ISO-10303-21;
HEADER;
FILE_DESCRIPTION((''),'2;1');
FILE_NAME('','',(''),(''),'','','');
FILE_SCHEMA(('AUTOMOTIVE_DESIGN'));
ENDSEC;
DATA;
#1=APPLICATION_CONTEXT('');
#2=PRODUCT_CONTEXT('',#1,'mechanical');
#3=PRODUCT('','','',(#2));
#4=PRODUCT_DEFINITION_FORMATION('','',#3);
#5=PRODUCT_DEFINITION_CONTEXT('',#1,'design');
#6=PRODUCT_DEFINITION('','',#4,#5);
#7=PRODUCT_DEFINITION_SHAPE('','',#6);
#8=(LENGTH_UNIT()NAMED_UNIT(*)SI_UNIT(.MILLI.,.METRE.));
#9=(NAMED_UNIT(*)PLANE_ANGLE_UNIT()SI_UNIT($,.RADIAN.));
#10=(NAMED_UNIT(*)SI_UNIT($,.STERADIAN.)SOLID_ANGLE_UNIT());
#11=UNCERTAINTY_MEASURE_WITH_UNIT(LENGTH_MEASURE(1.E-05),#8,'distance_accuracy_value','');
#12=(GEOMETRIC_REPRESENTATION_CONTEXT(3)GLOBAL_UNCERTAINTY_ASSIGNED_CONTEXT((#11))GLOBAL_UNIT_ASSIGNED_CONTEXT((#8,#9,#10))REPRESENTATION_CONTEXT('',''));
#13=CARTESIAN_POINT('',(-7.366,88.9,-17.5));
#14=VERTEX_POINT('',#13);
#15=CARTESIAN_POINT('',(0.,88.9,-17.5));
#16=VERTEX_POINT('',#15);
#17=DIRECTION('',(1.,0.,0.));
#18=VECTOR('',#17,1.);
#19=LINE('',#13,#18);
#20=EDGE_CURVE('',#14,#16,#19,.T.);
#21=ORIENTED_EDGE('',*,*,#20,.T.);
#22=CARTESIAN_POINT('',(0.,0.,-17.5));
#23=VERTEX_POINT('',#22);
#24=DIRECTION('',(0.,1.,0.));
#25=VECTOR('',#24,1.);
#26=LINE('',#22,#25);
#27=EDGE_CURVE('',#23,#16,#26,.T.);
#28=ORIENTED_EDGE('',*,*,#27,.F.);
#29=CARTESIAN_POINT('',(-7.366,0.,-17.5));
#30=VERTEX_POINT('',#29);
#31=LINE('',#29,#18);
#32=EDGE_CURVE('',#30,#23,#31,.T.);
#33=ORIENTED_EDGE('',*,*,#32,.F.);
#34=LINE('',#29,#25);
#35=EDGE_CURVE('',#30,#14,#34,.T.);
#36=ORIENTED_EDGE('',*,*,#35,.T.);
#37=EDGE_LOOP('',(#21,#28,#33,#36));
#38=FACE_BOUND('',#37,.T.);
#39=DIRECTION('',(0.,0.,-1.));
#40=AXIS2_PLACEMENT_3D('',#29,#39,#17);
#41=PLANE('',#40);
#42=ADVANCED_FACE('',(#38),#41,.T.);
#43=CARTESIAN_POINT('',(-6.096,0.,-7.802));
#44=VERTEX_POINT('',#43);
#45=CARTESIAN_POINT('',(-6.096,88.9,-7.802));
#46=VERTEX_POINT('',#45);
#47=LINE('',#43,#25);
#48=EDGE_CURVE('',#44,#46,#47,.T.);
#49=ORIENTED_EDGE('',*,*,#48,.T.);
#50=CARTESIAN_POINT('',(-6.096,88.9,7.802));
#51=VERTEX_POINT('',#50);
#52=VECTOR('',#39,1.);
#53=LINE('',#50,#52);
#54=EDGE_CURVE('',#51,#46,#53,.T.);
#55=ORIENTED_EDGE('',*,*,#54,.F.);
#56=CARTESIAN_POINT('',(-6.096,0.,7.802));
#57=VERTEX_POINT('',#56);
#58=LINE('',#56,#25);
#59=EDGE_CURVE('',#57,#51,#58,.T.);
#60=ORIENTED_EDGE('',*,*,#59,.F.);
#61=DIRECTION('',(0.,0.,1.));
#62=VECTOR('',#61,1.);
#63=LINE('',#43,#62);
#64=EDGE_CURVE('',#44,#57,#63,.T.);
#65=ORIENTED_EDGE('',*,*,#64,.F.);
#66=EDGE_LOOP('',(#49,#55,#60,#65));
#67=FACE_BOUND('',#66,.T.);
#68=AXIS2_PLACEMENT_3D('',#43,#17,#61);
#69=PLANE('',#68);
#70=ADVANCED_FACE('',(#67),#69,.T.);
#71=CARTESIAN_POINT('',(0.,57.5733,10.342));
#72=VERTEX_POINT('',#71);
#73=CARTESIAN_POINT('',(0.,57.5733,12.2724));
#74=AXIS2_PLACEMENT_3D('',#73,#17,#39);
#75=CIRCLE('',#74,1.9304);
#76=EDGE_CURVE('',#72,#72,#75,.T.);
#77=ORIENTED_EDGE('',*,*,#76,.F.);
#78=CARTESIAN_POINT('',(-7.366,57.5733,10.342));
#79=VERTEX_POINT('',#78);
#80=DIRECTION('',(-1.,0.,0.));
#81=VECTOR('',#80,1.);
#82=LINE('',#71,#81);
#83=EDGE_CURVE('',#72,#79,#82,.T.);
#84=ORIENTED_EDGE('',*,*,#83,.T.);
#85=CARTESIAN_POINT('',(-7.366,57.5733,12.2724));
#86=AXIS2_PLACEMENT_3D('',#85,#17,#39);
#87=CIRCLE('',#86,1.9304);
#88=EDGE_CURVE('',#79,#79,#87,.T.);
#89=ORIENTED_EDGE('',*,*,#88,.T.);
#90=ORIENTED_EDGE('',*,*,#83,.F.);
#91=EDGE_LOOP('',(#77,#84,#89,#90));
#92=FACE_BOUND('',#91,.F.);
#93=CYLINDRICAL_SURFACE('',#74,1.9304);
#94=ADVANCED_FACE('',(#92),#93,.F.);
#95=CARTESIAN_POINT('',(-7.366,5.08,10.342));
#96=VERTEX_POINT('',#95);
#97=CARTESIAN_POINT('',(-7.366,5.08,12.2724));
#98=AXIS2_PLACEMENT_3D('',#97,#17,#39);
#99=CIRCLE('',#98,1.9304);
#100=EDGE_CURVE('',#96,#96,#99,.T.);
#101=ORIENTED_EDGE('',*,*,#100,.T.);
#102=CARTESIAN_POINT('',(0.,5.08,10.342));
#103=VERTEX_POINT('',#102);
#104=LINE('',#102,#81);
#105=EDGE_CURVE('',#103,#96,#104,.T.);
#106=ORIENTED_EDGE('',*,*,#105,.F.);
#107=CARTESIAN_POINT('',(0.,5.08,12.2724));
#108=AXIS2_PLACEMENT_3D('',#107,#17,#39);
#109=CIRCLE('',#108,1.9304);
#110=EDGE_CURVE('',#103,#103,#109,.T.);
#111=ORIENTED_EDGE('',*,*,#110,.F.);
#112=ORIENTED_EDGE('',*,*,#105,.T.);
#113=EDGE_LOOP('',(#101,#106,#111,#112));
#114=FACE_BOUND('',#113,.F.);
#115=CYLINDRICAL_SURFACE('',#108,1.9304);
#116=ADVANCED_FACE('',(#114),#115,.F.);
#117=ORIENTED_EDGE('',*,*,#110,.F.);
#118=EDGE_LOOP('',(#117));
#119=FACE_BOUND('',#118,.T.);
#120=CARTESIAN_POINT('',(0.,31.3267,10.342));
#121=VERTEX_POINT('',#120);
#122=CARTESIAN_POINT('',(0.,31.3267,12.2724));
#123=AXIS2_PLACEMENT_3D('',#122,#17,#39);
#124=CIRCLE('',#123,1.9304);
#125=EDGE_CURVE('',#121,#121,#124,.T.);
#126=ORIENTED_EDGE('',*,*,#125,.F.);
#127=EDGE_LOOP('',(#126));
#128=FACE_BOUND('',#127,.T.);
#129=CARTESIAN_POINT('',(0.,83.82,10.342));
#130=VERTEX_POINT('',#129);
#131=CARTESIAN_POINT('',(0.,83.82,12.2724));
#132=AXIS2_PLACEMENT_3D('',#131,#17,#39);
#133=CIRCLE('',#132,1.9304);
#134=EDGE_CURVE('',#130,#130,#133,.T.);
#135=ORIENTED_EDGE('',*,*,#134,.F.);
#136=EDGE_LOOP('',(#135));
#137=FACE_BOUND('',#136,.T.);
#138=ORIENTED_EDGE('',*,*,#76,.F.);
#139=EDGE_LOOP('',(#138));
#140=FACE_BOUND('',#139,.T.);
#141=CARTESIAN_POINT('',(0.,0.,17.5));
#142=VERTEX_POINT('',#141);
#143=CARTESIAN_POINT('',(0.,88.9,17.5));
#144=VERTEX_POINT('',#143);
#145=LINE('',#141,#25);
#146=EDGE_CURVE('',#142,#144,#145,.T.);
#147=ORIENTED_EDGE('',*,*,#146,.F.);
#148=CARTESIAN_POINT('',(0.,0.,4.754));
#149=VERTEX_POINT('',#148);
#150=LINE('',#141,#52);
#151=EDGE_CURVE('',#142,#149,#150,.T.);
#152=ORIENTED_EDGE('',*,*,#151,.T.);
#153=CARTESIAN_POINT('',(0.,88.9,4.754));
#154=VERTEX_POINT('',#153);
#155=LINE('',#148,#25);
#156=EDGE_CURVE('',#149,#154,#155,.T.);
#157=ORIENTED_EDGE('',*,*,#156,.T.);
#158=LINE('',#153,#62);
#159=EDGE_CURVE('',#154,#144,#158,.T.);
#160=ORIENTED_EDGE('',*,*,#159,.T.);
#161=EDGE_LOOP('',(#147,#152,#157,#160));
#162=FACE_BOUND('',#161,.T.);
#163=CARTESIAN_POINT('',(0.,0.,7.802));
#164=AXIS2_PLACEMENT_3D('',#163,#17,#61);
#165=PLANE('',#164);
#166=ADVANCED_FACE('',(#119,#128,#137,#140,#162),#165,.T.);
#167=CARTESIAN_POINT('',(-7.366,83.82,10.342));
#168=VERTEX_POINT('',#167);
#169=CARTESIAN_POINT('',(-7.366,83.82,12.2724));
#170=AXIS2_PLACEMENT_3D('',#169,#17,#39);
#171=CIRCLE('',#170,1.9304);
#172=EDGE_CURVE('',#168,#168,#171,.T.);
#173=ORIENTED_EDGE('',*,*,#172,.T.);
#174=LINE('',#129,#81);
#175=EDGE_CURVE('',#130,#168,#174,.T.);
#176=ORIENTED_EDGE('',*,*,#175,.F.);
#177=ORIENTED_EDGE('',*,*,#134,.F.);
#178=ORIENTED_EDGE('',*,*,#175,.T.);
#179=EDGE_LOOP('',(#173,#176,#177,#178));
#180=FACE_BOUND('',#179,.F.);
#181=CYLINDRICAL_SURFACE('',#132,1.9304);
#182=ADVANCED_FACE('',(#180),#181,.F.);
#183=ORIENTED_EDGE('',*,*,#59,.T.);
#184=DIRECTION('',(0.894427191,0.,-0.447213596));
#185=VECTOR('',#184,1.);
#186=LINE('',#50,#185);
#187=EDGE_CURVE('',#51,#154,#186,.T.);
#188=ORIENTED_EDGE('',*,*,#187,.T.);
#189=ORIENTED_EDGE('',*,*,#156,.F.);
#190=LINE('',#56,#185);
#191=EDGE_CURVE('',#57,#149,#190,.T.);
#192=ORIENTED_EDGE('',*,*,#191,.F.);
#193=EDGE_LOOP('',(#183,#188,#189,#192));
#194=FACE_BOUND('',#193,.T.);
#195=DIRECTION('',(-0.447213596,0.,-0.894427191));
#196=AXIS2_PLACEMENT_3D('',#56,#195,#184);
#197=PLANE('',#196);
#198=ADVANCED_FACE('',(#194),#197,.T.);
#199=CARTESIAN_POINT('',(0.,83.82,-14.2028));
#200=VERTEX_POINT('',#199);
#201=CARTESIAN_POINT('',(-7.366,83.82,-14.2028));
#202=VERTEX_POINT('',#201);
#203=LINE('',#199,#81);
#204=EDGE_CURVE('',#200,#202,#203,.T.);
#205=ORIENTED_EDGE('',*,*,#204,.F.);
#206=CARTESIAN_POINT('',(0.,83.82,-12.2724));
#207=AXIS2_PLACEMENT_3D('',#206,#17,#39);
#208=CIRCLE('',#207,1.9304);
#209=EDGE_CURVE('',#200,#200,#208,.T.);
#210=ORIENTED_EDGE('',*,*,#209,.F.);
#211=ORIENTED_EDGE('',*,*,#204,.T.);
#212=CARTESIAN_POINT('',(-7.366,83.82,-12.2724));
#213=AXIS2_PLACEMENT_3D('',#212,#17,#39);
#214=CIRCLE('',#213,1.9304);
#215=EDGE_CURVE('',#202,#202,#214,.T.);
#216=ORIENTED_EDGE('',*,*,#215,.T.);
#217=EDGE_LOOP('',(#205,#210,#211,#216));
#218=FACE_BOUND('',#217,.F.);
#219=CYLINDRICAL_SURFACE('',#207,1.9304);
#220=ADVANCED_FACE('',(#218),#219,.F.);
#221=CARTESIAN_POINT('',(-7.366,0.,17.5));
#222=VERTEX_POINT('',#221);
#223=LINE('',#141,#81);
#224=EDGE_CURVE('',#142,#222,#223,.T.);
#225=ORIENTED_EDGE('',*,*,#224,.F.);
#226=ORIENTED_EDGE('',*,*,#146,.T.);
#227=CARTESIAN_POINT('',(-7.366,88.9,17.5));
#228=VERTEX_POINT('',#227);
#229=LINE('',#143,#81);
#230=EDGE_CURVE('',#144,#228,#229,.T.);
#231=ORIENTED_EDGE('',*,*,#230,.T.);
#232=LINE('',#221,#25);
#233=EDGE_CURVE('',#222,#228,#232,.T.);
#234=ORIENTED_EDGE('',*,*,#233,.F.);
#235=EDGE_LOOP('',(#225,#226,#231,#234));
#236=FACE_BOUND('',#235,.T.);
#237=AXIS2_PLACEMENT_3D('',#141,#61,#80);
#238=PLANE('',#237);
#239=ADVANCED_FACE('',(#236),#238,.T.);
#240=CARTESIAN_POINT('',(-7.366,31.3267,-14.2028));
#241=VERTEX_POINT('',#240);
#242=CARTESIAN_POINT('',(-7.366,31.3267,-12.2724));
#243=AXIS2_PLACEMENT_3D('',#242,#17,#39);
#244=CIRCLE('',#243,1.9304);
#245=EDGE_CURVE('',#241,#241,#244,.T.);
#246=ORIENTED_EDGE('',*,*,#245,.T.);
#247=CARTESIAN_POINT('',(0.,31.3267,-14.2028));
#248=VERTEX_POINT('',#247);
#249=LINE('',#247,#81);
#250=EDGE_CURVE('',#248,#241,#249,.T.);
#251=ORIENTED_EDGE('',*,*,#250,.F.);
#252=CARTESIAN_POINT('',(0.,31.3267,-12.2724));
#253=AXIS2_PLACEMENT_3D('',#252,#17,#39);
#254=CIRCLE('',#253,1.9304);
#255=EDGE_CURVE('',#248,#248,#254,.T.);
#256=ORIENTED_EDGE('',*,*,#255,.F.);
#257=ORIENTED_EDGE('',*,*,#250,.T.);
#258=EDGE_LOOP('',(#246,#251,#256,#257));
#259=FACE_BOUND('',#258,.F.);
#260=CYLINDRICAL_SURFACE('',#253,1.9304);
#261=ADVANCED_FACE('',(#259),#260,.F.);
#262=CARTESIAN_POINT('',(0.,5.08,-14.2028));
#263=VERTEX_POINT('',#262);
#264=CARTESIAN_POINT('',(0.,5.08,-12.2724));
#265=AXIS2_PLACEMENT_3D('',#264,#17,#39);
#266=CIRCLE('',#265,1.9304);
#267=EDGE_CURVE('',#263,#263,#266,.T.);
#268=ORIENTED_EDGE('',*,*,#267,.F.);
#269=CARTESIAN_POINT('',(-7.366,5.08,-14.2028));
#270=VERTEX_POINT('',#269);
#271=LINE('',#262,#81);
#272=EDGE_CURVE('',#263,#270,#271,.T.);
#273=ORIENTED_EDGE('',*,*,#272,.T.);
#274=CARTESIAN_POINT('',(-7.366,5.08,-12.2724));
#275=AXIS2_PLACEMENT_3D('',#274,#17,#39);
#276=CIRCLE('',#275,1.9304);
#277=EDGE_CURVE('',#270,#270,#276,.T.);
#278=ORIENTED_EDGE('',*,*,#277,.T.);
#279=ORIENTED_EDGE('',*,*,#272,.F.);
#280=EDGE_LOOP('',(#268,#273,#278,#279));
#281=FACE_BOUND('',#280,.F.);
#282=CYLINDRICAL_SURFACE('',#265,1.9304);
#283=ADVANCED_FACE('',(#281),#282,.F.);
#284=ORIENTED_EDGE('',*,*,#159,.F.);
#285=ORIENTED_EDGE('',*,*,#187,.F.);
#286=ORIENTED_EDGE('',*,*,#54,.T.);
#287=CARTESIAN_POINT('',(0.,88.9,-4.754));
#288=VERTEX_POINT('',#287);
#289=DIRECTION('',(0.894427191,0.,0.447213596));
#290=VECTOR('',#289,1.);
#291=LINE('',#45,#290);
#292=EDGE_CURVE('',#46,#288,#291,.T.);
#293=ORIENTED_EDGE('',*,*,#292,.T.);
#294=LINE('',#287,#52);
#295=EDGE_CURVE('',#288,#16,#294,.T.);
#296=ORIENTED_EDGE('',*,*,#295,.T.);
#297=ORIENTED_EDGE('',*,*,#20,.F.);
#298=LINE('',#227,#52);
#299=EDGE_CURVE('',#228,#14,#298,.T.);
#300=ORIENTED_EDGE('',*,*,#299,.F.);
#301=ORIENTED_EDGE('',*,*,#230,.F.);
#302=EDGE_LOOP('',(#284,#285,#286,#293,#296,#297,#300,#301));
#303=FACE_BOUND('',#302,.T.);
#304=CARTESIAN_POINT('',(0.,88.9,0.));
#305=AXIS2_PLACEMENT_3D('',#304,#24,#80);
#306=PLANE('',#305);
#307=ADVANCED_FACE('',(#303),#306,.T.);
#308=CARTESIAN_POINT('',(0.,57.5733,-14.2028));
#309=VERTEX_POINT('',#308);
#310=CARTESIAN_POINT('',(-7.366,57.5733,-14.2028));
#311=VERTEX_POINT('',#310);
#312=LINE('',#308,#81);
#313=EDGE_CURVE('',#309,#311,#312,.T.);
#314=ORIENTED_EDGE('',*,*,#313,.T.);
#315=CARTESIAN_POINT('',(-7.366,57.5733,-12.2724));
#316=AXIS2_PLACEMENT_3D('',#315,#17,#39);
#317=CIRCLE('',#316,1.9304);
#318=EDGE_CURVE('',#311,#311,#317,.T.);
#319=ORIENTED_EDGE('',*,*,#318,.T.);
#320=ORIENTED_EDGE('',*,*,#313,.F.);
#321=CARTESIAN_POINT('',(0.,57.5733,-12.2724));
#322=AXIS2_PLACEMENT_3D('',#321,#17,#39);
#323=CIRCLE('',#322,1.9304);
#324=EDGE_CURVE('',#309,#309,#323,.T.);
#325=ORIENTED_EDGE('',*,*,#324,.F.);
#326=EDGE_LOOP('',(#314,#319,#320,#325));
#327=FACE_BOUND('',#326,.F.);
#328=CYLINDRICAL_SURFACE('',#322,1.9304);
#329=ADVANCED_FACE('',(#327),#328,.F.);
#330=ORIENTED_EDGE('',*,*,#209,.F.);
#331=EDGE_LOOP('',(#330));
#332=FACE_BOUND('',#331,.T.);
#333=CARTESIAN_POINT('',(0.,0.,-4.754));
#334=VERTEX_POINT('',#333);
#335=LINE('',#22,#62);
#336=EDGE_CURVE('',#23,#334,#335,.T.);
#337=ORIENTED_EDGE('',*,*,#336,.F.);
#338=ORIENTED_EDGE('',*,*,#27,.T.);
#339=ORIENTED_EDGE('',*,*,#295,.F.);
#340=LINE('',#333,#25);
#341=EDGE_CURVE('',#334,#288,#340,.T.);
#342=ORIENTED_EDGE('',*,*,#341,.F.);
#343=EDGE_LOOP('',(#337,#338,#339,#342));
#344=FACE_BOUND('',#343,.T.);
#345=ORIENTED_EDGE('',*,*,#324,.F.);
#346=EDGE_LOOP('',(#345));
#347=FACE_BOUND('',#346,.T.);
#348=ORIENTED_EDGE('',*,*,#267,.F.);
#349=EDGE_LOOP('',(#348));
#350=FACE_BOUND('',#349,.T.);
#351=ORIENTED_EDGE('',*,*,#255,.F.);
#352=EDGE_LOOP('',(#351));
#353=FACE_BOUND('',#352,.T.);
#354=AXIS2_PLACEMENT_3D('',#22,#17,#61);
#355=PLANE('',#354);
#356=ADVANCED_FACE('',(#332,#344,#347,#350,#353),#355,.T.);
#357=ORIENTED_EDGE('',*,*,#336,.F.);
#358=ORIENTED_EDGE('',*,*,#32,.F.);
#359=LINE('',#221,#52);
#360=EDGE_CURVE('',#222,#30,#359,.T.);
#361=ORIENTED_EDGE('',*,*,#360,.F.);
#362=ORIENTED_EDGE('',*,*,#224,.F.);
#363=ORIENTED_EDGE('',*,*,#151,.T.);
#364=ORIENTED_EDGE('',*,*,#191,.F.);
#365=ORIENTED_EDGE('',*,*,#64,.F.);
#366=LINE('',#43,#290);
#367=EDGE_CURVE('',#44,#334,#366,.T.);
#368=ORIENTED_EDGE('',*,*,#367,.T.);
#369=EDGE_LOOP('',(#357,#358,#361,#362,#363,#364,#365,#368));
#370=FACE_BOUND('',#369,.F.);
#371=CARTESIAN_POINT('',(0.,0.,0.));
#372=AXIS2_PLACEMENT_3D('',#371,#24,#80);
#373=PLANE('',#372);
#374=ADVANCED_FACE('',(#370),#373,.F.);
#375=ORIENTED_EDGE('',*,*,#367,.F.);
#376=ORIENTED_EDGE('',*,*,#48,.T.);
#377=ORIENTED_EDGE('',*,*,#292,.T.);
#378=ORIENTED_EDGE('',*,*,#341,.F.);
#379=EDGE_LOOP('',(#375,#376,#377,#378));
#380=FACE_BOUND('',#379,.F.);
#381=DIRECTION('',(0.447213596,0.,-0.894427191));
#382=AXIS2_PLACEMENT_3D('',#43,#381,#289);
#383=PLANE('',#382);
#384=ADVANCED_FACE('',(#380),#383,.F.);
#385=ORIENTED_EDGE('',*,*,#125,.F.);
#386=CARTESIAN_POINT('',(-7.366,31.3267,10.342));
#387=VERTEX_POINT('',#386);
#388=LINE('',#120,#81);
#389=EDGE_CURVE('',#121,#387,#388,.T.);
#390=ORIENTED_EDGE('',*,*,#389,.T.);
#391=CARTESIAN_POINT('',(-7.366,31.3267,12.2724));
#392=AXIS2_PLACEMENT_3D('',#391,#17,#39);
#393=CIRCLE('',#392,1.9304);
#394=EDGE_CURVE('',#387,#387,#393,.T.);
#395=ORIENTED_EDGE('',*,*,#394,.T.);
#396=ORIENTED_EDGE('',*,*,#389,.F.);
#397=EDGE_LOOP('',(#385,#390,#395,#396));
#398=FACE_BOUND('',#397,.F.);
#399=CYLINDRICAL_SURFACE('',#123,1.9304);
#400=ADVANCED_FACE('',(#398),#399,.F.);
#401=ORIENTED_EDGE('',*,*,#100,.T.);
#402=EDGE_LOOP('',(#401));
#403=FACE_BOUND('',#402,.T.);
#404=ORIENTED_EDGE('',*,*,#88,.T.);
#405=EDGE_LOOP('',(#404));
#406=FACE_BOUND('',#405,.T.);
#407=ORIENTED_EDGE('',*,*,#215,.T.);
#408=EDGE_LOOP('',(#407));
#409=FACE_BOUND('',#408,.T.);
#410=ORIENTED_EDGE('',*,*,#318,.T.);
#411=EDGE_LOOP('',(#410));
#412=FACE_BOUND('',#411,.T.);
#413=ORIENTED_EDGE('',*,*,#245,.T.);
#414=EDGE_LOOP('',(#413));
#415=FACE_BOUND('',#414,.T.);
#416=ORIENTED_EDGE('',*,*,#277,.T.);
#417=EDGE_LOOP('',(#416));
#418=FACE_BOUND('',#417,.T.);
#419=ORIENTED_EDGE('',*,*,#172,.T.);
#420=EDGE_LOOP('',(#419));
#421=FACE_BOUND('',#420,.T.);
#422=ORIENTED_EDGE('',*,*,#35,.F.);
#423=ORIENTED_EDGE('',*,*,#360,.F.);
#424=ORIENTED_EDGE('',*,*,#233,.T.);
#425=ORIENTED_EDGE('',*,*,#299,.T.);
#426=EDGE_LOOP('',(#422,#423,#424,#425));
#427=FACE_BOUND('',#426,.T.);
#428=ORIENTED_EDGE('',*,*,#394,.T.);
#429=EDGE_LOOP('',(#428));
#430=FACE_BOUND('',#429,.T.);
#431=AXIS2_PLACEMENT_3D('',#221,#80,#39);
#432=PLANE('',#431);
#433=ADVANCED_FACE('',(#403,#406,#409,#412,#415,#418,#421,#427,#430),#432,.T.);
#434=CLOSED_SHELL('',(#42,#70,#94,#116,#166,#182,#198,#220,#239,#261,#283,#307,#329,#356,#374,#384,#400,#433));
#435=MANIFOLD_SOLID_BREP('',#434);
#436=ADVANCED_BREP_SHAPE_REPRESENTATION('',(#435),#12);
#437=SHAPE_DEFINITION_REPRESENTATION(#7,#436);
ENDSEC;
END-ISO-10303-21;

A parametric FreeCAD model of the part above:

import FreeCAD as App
import Part
import Sketcher
from FreeCAD import Vector
Q = App.Units.Quantity

doc = App.newDocument("Part")
body = doc.addObject("PartDesign::Body", "Body")

sketch1 = body.newObject("Sketcher::SketchObject", "Sketch")
sketch1.AttachmentSupport = (doc.getObject("XZ_Plane"), [""])
sketch1.MapMode = "FlatFace"
sketch1.addGeometry(Part.LineSegment(Vector(-7.366, 17.5, 0), Vector(0, 17.5, 0)), False)
sketch1.addGeometry(Part.LineSegment(Vector(0, 17.5, 0), Vector(0, 4.754, 0)), False)
sketch1.addGeometry(Part.LineSegment(Vector(0, 4.754, 0), Vector(-6.096, 7.802, 0)), False)
sketch1.addGeometry(Part.LineSegment(Vector(-6.096, 7.802, 0), Vector(-6.096, -7.802, 0)), False)
sketch1.addGeometry(Part.LineSegment(Vector(-6.096, -7.802, 0), Vector(0, -4.754, 0)), False)
sketch1.addGeometry(Part.LineSegment(Vector(0, -4.754, 0), Vector(0, -17.5, 0)), False)
sketch1.addGeometry(Part.LineSegment(Vector(0, -17.5, 0), Vector(-7.366, -17.5, 0)), False)
sketch1.addGeometry(Part.LineSegment(Vector(-7.366, -17.5, 0), Vector(-7.366, 17.5, 0)), False)
sketch1.addConstraint(Sketcher.Constraint("Coincident", 0, 2, 1, 1))
sketch1.addConstraint(Sketcher.Constraint("Coincident", 1, 2, 2, 1))
sketch1.addConstraint(Sketcher.Constraint("Coincident", 2, 2, 3, 1))
sketch1.addConstraint(Sketcher.Constraint("Coincident", 3, 2, 4, 1))
sketch1.addConstraint(Sketcher.Constraint("Coincident", 4, 2, 5, 1))
sketch1.addConstraint(Sketcher.Constraint("Coincident", 5, 2, 6, 1))
sketch1.addConstraint(Sketcher.Constraint("Coincident", 6, 2, 7, 1))
sketch1.addConstraint(Sketcher.Constraint("Coincident", 7, 2, 0, 1))
sketch1.addConstraint(Sketcher.Constraint("Horizontal", 0))
sketch1.addConstraint(Sketcher.Constraint("Vertical", 1))
sketch1.addConstraint(Sketcher.Constraint("Vertical", 3))
sketch1.addConstraint(Sketcher.Constraint("Vertical", 5))
sketch1.addConstraint(Sketcher.Constraint("Horizontal", 6))
sketch1.addConstraint(Sketcher.Constraint("Vertical", 7))
sketch1.addConstraint(Sketcher.Constraint("Symmetric", 1, 2, 4, 2, -1, 1))
sketch1.addConstraint(Sketcher.Constraint("Symmetric", 0, 2, 5, 2, -1))
sketch1.addConstraint(Sketcher.Constraint("Equal", 2, 4))
sketch1.addConstraint(Sketcher.Constraint("DistanceX", 0, 1, 0, 2, Q("0.29 in")))
sketch1.addConstraint(Sketcher.Constraint("DistanceX", 2, 2, -1, 1, Q("0.24 in")))
sketch1.addConstraint(Sketcher.Constraint("DistanceY", 1, 2, 2, 2, Q("0.12 in")))
sketch1.addConstraint(Sketcher.Constraint("DistanceY", 3, 2, 3, 1, 15.604))
sketch1.addConstraint(Sketcher.Constraint("DistanceY", 7, 1, 7, 2, 35.0))
pad1 = body.newObject("PartDesign::Pad", "Pad")
pad1.Profile = sketch1
pad1.Length = Q("3.5 in")
pad1.Reversed = True

sketch2 = body.newObject("Sketcher::SketchObject", "Sketch001")
sketch2.AttachmentSupport = (doc.getObject("YZ_Plane"), [""])
sketch2.MapMode = "FlatFace"
sketch2.addGeometry(Part.Circle(Vector(5.08, -12.2724, 0), Vector(0, 0, 1), 1.9304), False)
sketch2.addGeometry(Part.Circle(Vector(31.3267, -12.2724, 0), Vector(0, 0, 1), 1.9304), False)
sketch2.addGeometry(Part.Circle(Vector(57.5733, -12.2724, 0), Vector(0, 0, 1), 1.9304), False)
sketch2.addGeometry(Part.Circle(Vector(83.82, -12.2724, 0), Vector(0, 0, 1), 1.9304), False)
sketch2.addGeometry(Part.Circle(Vector(5.08, 12.2724, 0), Vector(0, 0, 1), 1.9304), False)
sketch2.addGeometry(Part.Circle(Vector(31.3267, 12.2724, 0), Vector(0, 0, 1), 1.9304), False)
sketch2.addGeometry(Part.Circle(Vector(57.5733, 12.2724, 0), Vector(0, 0, 1), 1.9304), False)
sketch2.addGeometry(Part.Circle(Vector(83.82, 12.2724, 0), Vector(0, 0, 1), 1.9304), False)
sketch2.addConstraint(Sketcher.Constraint("Equal", 0, 1))
sketch2.addConstraint(Sketcher.Constraint("Equal", 1, 2))
sketch2.addConstraint(Sketcher.Constraint("Equal", 2, 3))
sketch2.addConstraint(Sketcher.Constraint("Equal", 3, 4))
sketch2.addConstraint(Sketcher.Constraint("Equal", 4, 5))
sketch2.addConstraint(Sketcher.Constraint("Equal", 5, 6))
sketch2.addConstraint(Sketcher.Constraint("Equal", 6, 7))
sketch2.addConstraint(Sketcher.Constraint("Symmetric", 0, 3, 4, 3, -1))
sketch2.addConstraint(Sketcher.Constraint("Symmetric", 1, 3, 5, 3, -1))
sketch2.addConstraint(Sketcher.Constraint("Symmetric", 2, 3, 6, 3, -1))
sketch2.addConstraint(Sketcher.Constraint("Symmetric", 3, 3, 7, 3, -1))
sketch2.addConstraint(Sketcher.Constraint("Horizontal", 0, 3, 1, 3))
sketch2.addConstraint(Sketcher.Constraint("Horizontal", 1, 3, 2, 3))
sketch2.addConstraint(Sketcher.Constraint("Horizontal", 2, 3, 3, 3))
sketch2.addConstraint(Sketcher.Constraint("Diameter", 0, Q("0.152 in")))
sketch2.addConstraint(Sketcher.Constraint("DistanceX", -1, 1, 0, 3, Q("0.2 in")))
sketch2.addConstraint(Sketcher.Constraint("DistanceX", -1, 1, 3, 3, Q("3.3 in")))
sketch2.addConstraint(Sketcher.Constraint("DistanceX", 0, 3, 1, 3, 26.2467))
sketch2.addConstraint(Sketcher.Constraint("DistanceX", 1, 3, 2, 3, 26.2466))
sketch2.addConstraint(Sketcher.Constraint("DistanceY", 0, 3, -1, 1, 12.2724))
pocket1 = body.newObject("PartDesign::Pocket", "Pocket")
pocket1.Profile = sketch2
pocket1.Type = "ThroughAll"

doc.recompute()
